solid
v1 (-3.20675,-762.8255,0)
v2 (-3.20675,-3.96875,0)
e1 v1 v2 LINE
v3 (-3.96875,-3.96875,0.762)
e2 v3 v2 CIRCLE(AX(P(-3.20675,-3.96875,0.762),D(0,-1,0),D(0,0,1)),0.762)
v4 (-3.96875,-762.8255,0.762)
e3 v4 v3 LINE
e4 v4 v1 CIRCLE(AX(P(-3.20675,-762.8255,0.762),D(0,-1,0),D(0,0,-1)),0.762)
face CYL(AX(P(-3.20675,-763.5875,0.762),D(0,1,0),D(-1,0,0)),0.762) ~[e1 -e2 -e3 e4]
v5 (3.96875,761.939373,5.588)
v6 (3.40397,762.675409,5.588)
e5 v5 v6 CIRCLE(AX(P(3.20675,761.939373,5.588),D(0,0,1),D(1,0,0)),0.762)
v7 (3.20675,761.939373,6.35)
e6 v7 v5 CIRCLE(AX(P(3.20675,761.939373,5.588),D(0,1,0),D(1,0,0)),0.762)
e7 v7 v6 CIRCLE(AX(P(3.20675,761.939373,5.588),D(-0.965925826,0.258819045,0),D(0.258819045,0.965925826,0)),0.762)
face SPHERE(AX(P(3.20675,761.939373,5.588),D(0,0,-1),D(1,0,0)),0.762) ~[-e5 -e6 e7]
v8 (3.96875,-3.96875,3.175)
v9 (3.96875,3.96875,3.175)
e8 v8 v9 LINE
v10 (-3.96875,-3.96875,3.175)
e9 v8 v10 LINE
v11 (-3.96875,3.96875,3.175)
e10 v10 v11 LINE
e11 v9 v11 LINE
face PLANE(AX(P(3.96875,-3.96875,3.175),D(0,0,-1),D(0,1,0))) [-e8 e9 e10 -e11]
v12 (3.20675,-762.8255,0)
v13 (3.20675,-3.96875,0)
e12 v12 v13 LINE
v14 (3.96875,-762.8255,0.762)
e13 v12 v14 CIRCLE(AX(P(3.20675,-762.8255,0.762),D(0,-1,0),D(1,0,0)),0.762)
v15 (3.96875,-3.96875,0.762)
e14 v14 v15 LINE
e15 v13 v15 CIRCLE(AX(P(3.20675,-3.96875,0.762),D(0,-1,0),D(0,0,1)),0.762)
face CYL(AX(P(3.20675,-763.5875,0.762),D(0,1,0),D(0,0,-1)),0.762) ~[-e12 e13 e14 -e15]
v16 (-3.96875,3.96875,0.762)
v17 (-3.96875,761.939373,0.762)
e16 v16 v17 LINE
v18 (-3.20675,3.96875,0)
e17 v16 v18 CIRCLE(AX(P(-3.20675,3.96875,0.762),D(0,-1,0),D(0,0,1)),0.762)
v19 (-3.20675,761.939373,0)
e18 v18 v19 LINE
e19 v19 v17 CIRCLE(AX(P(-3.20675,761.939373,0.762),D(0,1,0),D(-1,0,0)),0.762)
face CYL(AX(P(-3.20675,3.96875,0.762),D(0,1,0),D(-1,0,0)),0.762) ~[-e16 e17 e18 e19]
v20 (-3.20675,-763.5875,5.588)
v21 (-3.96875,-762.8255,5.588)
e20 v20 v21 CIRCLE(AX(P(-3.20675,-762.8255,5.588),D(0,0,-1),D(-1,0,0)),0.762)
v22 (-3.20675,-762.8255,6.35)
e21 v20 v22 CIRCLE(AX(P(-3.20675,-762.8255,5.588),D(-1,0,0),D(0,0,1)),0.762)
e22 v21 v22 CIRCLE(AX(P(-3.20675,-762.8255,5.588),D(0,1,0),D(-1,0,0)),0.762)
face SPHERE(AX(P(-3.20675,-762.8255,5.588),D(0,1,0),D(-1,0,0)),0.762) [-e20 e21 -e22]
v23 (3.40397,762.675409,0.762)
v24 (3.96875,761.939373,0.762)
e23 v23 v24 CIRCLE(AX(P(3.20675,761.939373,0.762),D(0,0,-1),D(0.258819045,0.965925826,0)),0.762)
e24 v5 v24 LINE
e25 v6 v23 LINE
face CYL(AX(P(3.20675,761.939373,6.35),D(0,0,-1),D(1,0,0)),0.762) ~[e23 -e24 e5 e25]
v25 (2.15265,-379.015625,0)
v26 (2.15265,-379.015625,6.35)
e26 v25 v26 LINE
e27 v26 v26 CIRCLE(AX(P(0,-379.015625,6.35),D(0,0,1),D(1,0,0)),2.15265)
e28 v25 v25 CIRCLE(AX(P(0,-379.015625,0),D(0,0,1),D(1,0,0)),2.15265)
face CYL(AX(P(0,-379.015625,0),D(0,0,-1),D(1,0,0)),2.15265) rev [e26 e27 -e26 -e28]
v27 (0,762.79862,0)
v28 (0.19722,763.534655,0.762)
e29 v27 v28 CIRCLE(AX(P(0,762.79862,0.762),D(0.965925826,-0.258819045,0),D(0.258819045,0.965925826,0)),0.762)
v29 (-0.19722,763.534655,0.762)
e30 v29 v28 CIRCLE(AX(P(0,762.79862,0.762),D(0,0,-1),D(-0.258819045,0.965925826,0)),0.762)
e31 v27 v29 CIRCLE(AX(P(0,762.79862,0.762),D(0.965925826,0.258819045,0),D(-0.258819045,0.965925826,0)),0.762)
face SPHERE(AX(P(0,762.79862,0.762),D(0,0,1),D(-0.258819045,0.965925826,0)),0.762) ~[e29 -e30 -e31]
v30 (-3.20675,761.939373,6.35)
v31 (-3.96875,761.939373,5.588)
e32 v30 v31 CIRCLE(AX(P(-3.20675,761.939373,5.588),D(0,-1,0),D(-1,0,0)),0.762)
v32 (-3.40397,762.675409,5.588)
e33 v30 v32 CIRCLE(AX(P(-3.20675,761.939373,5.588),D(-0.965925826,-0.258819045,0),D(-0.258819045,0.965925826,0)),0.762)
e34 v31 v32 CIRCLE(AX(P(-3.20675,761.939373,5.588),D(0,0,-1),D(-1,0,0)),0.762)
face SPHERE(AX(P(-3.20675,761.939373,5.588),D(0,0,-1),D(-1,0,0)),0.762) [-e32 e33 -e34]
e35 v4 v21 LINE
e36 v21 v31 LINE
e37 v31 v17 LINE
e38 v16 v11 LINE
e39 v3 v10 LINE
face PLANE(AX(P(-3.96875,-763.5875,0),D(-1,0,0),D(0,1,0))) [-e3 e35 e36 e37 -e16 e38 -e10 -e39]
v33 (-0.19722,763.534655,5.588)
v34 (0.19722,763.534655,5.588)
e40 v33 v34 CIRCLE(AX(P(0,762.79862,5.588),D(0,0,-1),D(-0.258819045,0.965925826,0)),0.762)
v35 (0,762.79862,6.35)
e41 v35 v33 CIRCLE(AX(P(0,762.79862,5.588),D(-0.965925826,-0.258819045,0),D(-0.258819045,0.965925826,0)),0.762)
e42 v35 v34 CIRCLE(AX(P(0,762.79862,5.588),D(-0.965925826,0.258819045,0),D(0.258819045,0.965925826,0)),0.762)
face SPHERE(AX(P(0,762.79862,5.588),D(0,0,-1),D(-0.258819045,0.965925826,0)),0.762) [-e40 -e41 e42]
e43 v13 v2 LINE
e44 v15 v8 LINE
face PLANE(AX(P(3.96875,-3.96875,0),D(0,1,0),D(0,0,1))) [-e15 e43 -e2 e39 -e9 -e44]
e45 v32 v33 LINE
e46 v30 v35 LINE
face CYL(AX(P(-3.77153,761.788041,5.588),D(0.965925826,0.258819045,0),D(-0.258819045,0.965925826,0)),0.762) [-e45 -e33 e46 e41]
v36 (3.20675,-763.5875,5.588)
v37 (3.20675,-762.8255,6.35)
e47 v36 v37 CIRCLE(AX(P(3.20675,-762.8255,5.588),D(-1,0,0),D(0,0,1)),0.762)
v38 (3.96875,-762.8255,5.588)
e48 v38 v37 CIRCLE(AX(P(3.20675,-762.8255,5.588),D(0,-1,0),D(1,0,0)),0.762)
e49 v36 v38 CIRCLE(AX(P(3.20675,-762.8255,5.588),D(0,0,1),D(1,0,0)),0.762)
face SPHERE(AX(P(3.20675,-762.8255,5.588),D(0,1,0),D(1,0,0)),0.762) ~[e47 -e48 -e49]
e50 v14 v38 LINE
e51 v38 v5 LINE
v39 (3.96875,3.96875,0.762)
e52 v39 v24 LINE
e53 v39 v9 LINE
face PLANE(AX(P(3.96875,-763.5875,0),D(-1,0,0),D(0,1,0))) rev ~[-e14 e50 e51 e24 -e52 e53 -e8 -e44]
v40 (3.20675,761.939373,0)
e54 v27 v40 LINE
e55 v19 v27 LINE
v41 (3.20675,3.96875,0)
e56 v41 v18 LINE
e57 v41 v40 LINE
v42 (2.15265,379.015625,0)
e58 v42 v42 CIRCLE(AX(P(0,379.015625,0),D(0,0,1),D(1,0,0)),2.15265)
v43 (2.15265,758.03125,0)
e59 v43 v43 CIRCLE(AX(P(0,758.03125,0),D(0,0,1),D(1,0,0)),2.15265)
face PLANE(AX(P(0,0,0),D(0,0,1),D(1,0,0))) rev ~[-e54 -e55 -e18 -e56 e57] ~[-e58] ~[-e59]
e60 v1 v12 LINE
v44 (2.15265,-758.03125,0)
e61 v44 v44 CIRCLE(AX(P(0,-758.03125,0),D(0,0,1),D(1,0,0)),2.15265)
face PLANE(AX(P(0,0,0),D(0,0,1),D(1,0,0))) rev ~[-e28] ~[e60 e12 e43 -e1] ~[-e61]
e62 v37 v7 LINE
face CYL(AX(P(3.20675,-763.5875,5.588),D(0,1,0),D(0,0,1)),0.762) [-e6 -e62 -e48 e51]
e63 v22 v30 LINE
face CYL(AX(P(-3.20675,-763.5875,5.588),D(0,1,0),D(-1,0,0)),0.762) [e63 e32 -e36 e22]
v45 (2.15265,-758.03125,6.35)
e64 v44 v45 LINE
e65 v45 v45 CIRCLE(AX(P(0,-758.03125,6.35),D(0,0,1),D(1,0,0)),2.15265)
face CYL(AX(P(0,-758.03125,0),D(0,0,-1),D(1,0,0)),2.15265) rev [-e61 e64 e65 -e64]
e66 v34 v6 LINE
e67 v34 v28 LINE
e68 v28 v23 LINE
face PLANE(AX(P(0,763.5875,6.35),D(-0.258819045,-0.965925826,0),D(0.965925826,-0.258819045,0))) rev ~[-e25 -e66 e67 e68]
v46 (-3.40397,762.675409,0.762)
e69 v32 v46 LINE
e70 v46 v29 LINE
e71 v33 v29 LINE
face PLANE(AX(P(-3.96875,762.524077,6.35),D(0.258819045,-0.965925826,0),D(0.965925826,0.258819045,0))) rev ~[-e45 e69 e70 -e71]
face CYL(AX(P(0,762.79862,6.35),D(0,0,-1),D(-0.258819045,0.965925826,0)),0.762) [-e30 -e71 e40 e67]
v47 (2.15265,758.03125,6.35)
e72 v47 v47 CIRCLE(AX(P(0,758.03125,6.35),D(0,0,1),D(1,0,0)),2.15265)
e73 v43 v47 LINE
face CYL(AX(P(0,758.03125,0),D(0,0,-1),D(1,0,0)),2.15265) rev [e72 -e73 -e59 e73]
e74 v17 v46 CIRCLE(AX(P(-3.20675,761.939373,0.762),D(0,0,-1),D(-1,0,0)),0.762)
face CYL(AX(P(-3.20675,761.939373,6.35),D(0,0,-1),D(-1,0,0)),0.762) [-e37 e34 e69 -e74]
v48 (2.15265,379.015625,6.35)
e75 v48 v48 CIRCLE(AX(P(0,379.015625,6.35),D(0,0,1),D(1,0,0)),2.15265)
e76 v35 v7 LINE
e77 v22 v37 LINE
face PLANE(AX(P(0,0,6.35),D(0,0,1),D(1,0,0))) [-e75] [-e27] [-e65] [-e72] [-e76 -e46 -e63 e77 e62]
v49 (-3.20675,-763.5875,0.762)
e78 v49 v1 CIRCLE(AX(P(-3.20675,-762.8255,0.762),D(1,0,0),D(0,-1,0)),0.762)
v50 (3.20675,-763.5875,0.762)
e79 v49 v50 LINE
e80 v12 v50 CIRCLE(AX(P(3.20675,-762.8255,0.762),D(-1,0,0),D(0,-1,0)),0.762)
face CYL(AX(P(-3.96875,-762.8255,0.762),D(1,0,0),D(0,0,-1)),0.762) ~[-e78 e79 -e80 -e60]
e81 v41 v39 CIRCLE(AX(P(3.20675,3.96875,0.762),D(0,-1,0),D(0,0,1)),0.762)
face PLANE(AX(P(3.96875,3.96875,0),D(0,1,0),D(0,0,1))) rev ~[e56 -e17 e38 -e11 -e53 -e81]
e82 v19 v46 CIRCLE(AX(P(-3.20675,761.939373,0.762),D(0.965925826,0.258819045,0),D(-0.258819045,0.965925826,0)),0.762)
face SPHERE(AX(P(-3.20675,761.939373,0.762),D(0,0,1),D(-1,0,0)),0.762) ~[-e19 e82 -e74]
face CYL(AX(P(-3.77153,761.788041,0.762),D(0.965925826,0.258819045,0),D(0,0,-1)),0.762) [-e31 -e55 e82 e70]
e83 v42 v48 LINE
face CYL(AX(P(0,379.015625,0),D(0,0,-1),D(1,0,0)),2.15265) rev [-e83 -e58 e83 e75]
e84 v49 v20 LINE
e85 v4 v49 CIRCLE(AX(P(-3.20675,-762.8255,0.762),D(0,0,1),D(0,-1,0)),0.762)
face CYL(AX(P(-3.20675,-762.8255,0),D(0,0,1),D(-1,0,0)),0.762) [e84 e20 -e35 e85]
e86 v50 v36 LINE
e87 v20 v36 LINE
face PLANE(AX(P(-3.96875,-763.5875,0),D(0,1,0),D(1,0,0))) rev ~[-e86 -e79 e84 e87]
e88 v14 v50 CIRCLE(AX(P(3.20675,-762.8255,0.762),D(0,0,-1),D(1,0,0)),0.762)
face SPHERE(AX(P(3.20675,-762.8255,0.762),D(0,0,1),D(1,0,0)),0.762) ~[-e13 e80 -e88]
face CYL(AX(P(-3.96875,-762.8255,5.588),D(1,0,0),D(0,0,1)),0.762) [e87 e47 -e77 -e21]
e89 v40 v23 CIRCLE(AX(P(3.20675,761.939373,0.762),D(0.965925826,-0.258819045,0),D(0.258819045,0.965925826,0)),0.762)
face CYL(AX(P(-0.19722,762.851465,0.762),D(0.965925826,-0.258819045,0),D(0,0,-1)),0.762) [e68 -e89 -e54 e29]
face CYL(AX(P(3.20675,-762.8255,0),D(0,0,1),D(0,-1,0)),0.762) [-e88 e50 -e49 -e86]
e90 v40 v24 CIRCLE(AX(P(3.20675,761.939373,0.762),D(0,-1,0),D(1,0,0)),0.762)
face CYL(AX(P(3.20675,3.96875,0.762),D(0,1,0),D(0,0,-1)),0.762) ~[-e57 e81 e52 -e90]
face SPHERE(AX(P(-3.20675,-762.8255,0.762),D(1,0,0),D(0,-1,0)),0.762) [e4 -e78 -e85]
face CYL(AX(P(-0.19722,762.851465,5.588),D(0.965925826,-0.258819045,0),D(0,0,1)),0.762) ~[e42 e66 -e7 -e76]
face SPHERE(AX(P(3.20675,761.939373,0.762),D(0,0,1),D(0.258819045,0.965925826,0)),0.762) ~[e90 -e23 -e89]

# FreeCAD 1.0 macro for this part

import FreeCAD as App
import Part
import Sketcher
Q = App.Units.Quantity


def edges_at(feature, points):
    """Names of the edges that pass closest to the given points."""
    edges = feature.Shape.Edges
    near = lambda p: min(range(len(edges)), key=lambda i: edges[i].distToShape(Part.Vertex(*p))[0])
    return sorted({f"Edge{near(p) + 1}" for p in points})


def add_polygon(sketch, points):
    """Adds a closed chain of lines whose ends are joined by coincident constraints."""
    first, n = sketch.GeometryCount, len(points)
    for a, b in zip(points, points[1:] + points[:1]):
        sketch.addGeometry(Part.LineSegment(App.Vector(*a, 0), App.Vector(*b, 0)), False)
    for i in range(n):
        sketch.addConstraint(Sketcher.Constraint("Coincident", first + i, 2, first + (i + 1) % n, 1))

doc = App.newDocument("Part")
params = doc.addObject("Spreadsheet::Sheet", "Params")
for row, (alias, value) in enumerate([
    ("sketch1_width", "0.3125 in"),
    ("sketch1_height", "60.125 in"),
    ("pad1_length", "0.25 in"),
    ("sketch2_width", "0.3125 in"),
    ("sketch2_height", "0.125 in"),
    ("sketch3_width", "0.3125 in"),
    ("fillet_radius", "0.03 in"),
], start=1):
    params.set(f"A{row}", alias)
    params.set(f"B{row}", "=" + value)
    params.setAlias(f"B{row}", alias)

body = doc.addObject("PartDesign::Body", "Body")

# Sketch on XY plane
sketch1 = body.newObject("Sketcher::SketchObject", "Sketch")
sketch1.AttachmentSupport = (doc.getObject("XY_Plane"), [""])
sketch1.MapMode = "FlatFace"
add_polygon(sketch1, [(-3.96875, 763.5875), (-3.96875, -763.5875), (3.96875, -763.5875), (3.96875, 763.5875)])  # lines 0-3
sketch1.addGeometry(Part.Circle(App.Vector(0, -758.03125, 0), App.Vector(0, 0, 1), 2.15265), False)  # 4
sketch1.addGeometry(Part.Circle(App.Vector(0, -379.015625, 0), App.Vector(0, 0, 1), 2.15265), False)  # 5
sketch1.addGeometry(Part.Circle(App.Vector(0, 379.015625, 0), App.Vector(0, 0, 1), 2.15265), False)  # 6
sketch1.addGeometry(Part.Circle(App.Vector(0, 758.03125, 0), App.Vector(0, 0, 1), 2.15265), False)  # 7
sketch1.addConstraint(Sketcher.Constraint("Vertical", 0))
sketch1.addConstraint(Sketcher.Constraint("Horizontal", 1))
sketch1.addConstraint(Sketcher.Constraint("Vertical", 2))
sketch1.addConstraint(Sketcher.Constraint("Horizontal", 3))
sketch1.addConstraint(Sketcher.Constraint("Equal", 4, 5))
sketch1.addConstraint(Sketcher.Constraint("Equal", 5, 6))
sketch1.addConstraint(Sketcher.Constraint("Equal", 6, 7))
sketch1.addConstraint(Sketcher.Constraint("Symmetric", 5, 3, 6, 3, -1, 1))
sketch1.addConstraint(Sketcher.Constraint("Symmetric", 4, 3, 7, 3, -1, 1))
sketch1.addConstraint(Sketcher.Constraint("Symmetric", 0, 2, 2, 2, -1, 1))
sketch1.addConstraint(Sketcher.Constraint("PointOnObject", 4, 3, -2))
sketch1.addConstraint(Sketcher.Constraint("PointOnObject", 5, 3, -2))
sketch1.addConstraint(Sketcher.Constraint("Diameter", 4, Q("0.1695 in")))
sketch1.addConstraint(Sketcher.Constraint("DistanceX", 1, 1, 1, 2, Q("0.3125 in")))
sketch1.addConstraint(Sketcher.Constraint("DistanceY", 0, 2, 0, 1, Q("60.125 in")))
sketch1.addConstraint(Sketcher.Constraint("DistanceY", 4, 3, -1, 1, Q("29.84375 in")))
sketch1.addConstraint(Sketcher.Constraint("DistanceY", 5, 3, -1, 1, Q("14.921875 in")))
sketch1.setExpression("Constraints[17]", "Params.sketch1_width")
sketch1.setExpression("Constraints[18]", "Params.sketch1_height")
pad1 = body.newObject("PartDesign::Pad", "Pad")
pad1.Profile = sketch1
pad1.setExpression("Length", "Params.pad1_length")

# Sketch on YZ plane
sketch2 = body.newObject("Sketcher::SketchObject", "Sketch001")
sketch2.AttachmentSupport = (doc.getObject("YZ_Plane"), [""])
sketch2.MapMode = "FlatFace"
sketch2.AttachmentOffset = App.Placement(App.Vector(0, 0, 0.15625 * 25.4), App.Rotation())
add_polygon(sketch2, [(-3.96875, 3.175), (-3.96875, 0), (3.96875, 0), (3.96875, 3.175)])  # lines 0-3
sketch2.addConstraint(Sketcher.Constraint("Vertical", 0))
sketch2.addConstraint(Sketcher.Constraint("Horizontal", 1))
sketch2.addConstraint(Sketcher.Constraint("Vertical", 2))
sketch2.addConstraint(Sketcher.Constraint("Horizontal", 3))
sketch2.addConstraint(Sketcher.Constraint("Symmetric", 0, 2, 1, 2, -1, 1))
sketch2.addConstraint(Sketcher.Constraint("DistanceX", 1, 1, 1, 2, Q("0.3125 in")))
sketch2.addConstraint(Sketcher.Constraint("DistanceY", 0, 2, 0, 1, Q("0.125 in")))
sketch2.setExpression("Constraints[9]", "Params.sketch2_width")
sketch2.setExpression("Constraints[10]", "Params.sketch2_height")
pocket1 = body.newObject("PartDesign::Pocket", "Pocket")
pocket1.Profile = sketch2
pocket1.Type = "ThroughAll"

# Sketch on XY plane
sketch3 = body.newObject("Sketcher::SketchObject", "Sketch002")
sketch3.AttachmentSupport = (doc.getObject("XY_Plane"), [""])
sketch3.MapMode = "FlatFace"
sketch3.AttachmentOffset = App.Placement(App.Vector(0, 0, 0.25 * 25.4), App.Rotation())
add_polygon(sketch3, [(-3.96875, 762.524077), (0, 763.5875), (3.96875, 762.524077), (3.96875, 770.461577), (-3.96875, 770.461577)])  # lines 0-4
sketch3.addConstraint(Sketcher.Constraint("Vertical", 2))
sketch3.addConstraint(Sketcher.Constraint("Horizontal", 3))
sketch3.addConstraint(Sketcher.Constraint("Vertical", 4))
sketch3.addConstraint(Sketcher.Constraint("Symmetric", 1, 2, 4, 2, -2))
sketch3.addConstraint(Sketcher.Constraint("PointOnObject", 0, 2, -2))
sketch3.addConstraint(Sketcher.Constraint("Equal", 3, 2))
sketch3.addConstraint(Sketcher.Constraint("Angle", 0, Q("15 deg")))
sketch3.addConstraint(Sketcher.Constraint("DistanceX", 3, 2, 3, 1, Q("0.3125 in")))
sketch3.addConstraint(Sketcher.Constraint("DistanceY", -1, 1, 0, 2, Q("30.0625 in")))
sketch3.setExpression("Constraints[12]", "Params.sketch3_width")
pocket2 = body.newObject("PartDesign::Pocket", "Pocket001")
pocket2.Profile = sketch3
pocket2.Type = "ThroughAll"
doc.recompute()

fillet = body.newObject("PartDesign::Fillet", "Fillet")
fillet.Base = (pocket2, edges_at(pocket2, [
    (-1.984, 763.056, 6.35),
    (1.984, 763.056, 6.35),
    (0, 763.587, 3.175),
    (3.969, 762.524, 3.175),
    (-3.969, 762.524, 3.175),
    (-3.969, -0.532, 6.35),
    (3.969, -0.532, 6.35),
    (-3.969, 383.246, 0),
    (-1.984, 763.056, 0),
    (1.984, 763.056, 0),
    (3.969, 383.246, 0),
    (3.969, -763.587, 3.175),
    (3.969, -383.778, 0),
    (0, -763.587, 0),
    (-3.969, -763.587, 3.175),
    (0, -763.587, 6.35),
    (-3.969, -383.778, 0),
]))
fillet.setExpression("Radius", "Params.fillet_radius")

doc.recompute()
